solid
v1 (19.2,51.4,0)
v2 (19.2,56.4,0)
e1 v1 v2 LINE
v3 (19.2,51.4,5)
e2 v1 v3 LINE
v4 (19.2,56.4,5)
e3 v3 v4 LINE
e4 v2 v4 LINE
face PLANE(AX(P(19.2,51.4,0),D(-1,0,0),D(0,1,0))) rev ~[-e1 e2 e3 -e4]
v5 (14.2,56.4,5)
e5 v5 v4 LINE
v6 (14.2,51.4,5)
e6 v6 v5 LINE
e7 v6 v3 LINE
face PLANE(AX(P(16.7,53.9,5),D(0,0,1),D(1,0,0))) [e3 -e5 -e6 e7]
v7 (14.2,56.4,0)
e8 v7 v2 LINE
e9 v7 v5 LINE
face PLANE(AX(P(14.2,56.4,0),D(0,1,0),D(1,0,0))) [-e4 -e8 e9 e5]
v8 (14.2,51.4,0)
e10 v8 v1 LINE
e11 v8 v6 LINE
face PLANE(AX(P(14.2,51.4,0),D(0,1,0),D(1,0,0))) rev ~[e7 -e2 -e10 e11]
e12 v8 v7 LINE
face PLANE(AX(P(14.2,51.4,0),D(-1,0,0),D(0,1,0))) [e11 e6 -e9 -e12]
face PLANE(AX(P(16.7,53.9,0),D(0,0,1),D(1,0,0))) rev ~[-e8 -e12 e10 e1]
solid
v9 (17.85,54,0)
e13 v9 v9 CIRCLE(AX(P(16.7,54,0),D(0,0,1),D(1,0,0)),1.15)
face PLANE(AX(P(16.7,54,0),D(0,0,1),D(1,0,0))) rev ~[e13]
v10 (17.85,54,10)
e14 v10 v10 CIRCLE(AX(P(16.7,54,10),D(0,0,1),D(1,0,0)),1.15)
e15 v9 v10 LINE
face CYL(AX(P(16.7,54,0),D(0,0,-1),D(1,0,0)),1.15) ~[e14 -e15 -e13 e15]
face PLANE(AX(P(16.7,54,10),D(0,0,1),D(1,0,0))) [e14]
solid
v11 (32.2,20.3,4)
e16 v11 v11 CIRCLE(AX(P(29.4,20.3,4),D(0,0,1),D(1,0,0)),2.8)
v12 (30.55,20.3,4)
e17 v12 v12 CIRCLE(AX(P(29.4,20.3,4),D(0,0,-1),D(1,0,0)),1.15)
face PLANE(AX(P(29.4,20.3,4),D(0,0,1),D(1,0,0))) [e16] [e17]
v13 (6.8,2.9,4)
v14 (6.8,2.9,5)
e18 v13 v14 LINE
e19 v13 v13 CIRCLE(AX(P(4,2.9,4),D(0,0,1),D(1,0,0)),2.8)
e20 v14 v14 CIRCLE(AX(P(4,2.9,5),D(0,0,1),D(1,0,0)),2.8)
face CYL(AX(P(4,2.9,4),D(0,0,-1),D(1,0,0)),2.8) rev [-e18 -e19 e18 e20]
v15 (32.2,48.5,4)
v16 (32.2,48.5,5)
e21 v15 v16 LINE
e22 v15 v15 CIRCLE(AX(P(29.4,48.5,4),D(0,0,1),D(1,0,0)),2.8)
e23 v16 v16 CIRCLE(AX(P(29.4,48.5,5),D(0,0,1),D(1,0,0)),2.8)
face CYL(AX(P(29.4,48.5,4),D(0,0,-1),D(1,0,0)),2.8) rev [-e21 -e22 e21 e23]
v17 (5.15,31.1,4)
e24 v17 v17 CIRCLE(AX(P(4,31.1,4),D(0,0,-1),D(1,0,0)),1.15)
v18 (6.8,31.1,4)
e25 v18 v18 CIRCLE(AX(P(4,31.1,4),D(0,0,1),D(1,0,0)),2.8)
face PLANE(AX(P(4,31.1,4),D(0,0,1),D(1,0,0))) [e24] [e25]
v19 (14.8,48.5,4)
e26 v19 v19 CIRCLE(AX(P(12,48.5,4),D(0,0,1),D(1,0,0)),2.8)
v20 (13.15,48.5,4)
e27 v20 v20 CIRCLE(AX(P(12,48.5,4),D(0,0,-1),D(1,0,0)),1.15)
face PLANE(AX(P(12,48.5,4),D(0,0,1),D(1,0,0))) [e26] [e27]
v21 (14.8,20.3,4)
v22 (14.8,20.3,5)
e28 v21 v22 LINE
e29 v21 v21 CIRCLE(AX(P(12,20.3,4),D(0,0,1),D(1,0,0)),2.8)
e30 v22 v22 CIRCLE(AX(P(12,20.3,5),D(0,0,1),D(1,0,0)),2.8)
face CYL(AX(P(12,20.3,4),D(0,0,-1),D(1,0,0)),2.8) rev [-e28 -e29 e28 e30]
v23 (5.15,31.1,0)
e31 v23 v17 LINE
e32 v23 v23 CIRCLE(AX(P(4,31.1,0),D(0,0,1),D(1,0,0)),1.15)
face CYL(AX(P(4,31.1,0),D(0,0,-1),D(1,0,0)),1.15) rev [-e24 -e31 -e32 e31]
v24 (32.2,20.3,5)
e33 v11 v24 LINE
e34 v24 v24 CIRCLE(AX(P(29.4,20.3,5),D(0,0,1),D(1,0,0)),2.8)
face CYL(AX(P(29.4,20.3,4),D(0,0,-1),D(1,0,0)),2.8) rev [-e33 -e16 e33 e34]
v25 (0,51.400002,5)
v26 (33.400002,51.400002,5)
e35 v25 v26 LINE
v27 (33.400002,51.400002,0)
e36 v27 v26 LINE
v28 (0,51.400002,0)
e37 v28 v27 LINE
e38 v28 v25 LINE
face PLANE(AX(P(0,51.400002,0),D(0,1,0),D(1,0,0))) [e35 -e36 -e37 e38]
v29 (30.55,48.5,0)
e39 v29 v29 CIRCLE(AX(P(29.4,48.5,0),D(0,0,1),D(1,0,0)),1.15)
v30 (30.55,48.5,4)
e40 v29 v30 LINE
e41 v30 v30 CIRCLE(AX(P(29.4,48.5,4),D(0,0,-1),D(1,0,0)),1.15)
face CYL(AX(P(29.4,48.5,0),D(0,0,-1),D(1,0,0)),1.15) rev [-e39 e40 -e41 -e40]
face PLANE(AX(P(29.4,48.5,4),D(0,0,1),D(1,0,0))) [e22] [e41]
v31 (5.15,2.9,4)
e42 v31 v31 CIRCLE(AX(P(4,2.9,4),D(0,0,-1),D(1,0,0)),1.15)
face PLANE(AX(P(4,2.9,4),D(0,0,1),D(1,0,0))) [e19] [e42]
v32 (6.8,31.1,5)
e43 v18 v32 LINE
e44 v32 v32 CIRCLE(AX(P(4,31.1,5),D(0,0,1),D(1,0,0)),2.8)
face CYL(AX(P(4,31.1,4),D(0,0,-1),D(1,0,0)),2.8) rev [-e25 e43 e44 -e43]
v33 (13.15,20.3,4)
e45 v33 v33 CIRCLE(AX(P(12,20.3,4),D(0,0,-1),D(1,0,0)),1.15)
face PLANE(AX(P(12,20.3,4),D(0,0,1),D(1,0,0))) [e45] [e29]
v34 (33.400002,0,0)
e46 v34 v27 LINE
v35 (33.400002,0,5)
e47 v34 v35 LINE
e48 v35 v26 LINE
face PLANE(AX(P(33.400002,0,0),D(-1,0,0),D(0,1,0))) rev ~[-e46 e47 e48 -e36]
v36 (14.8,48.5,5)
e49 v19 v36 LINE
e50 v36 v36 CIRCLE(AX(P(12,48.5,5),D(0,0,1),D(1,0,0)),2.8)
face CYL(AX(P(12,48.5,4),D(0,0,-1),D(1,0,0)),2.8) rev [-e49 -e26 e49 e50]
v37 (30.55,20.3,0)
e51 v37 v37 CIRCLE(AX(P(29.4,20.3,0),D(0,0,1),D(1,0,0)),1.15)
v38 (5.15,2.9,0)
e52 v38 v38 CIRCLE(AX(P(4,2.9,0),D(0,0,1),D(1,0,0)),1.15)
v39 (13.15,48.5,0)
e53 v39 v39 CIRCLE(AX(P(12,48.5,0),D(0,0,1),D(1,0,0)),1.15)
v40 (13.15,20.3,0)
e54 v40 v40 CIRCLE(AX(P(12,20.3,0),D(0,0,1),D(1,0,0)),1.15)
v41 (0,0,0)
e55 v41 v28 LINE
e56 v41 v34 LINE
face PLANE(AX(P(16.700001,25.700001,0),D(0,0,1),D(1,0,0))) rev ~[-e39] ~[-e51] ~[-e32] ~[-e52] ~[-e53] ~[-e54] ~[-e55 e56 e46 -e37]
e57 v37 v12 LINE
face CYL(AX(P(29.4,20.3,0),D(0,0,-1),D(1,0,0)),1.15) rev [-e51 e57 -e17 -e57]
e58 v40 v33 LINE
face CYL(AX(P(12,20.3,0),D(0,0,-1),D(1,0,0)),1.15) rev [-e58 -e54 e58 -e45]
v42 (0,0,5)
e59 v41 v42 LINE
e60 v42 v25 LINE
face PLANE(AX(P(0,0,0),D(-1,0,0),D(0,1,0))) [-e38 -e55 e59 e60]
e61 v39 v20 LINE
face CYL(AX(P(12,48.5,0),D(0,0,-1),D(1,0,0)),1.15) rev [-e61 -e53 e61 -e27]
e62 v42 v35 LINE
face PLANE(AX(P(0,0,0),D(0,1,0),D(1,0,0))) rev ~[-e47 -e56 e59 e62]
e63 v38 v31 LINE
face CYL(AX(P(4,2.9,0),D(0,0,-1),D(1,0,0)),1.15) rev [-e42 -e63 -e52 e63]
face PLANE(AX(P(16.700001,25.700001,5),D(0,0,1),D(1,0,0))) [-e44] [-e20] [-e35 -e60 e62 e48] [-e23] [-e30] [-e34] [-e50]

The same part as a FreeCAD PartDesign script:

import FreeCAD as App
import Part
import Sketcher

V = App.Vector
Q = App.Units.Quantity


def add_polygon(sketch, points):
    """Adds a closed chain of lines whose ends are joined by coincident constraints."""
    first, n = sketch.GeometryCount, len(points)
    for a, b in zip(points, points[1:] + points[:1]):
        sketch.addGeometry(Part.LineSegment(App.Vector(*a, 0), App.Vector(*b, 0)), False)
    for i in range(n):
        sketch.addConstraint(Sketcher.Constraint("Coincident", first + i, 2, first + (i + 1) % n, 1))

doc = App.newDocument("Part")
body = doc.addObject("PartDesign::Body", "Body")

sketch1 = body.newObject("Sketcher::SketchObject", "Sketch")
sketch1.AttachmentSupport = (doc.getObject("XY_Plane"), [""])
sketch1.MapMode = "FlatFace"
sketch1.addGeometry(Part.Circle(V(4, 2.9, 0), V(0, 0, 1), 1.1), False)
sketch1.addConstraint([
    Sketcher.Constraint("Diameter", 0, Q("2.3 mm")),
    Sketcher.Constraint("DistanceX", -1, 1, 0, 3, Q("4 mm")),
    Sketcher.Constraint("DistanceY", -1, 1, 0, 3, Q("2.9 mm")),
])
pad1 = body.newObject("PartDesign::Pad", "Pad")
pad1.Profile = sketch1
pad1.Length = 10
body2 = doc.addObject("PartDesign::Body", "Body001")

sketch2 = body2.newObject("Sketcher::SketchObject", "Sketch001")
sketch2.AttachmentSupport = (doc.getObject("XY_Plane001"), [""])
sketch2.MapMode = "FlatFace"
sketch2.AttachmentOffset = App.Placement(V(0, 0, 4), App.Rotation())
sketch2.addGeometry(Part.Circle(V(4, 31.1, 0), V(0, 0, 1), 2.8), False)
sketch2.addConstraint([
    Sketcher.Constraint("Diameter", 0, Q("5.6 mm")),
    Sketcher.Constraint("DistanceX", -1, 1, 0, 3, Q("4 mm")),
    Sketcher.Constraint("DistanceY", -1, 1, 0, 3, Q("31.1 mm")),
])
pad2 = body2.newObject("PartDesign::Pad", "Pad001")
pad2.Profile = sketch2
pad2.Length = 1
body3 = doc.addObject("PartDesign::Body", "Body002")

sketch3 = body3.newObject("Sketcher::SketchObject", "Sketch002")
sketch3.AttachmentSupport = (doc.getObject("XY_Plane002"), [""])
sketch3.MapMode = "FlatFace"
sketch3.addGeometry(Part.Circle(V(4, 31.1, 0), V(0, 0, 1), 1.1), False)
sketch3.addConstraint([
    Sketcher.Constraint("Diameter", 0, Q("2.3 mm")),
    Sketcher.Constraint("DistanceX", -1, 1, 0, 3, Q("4 mm")),
    Sketcher.Constraint("DistanceY", -1, 1, 0, 3, Q("31.1 mm")),
])
pad3 = body3.newObject("PartDesign::Pad", "Pad002")
pad3.Profile = sketch3
pad3.Length = 10
body4 = doc.addObject("PartDesign::Body", "Body003")

sketch4 = body4.newObject("Sketcher::SketchObject", "Sketch003")
sketch4.AttachmentSupport = (doc.getObject("XY_Plane003"), [""])
sketch4.MapMode = "FlatFace"
sketch4.AttachmentOffset = App.Placement(V(0, 0, 4), App.Rotation())
sketch4.addGeometry(Part.Circle(V(12, 20.3, 0), V(0, 0, 1), 2.8), False)
sketch4.addConstraint([
    Sketcher.Constraint("Diameter", 0, Q("5.6 mm")),
    Sketcher.Constraint("DistanceX", -1, 1, 0, 3, Q("12 mm")),
    Sketcher.Constraint("DistanceY", -1, 1, 0, 3, Q("20.3 mm")),
])
pad4 = body4.newObject("PartDesign::Pad", "Pad003")
pad4.Profile = sketch4
pad4.Length = 1
body5 = doc.addObject("PartDesign::Body", "Body004")

sketch5 = body5.newObject("Sketcher::SketchObject", "Sketch004")
sketch5.AttachmentSupport = (doc.getObject("XY_Plane004"), [""])
sketch5.MapMode = "FlatFace"
sketch5.addGeometry(Part.Circle(V(12, 20.3, 0), V(0, 0, 1), 1.1), False)
sketch5.addConstraint([
    Sketcher.Constraint("Diameter", 0, Q("2.3 mm")),
    Sketcher.Constraint("DistanceX", -1, 1, 0, 3, Q("12 mm")),
    Sketcher.Constraint("DistanceY", -1, 1, 0, 3, Q("20.3 mm")),
])
pad5 = body5.newObject("PartDesign::Pad", "Pad004")
pad5.Profile = sketch5
pad5.Length = 10
body6 = doc.addObject("PartDesign::Body", "Body005")

sketch6 = body6.newObject("Sketcher::SketchObject", "Sketch005")
sketch6.AttachmentSupport = (doc.getObject("XY_Plane005"), [""])
sketch6.MapMode = "FlatFace"
sketch6.AttachmentOffset = App.Placement(V(0, 0, 4), App.Rotation())
sketch6.addGeometry(Part.Circle(V(12, 48.5, 0), V(0, 0, 1), 2.8), False)
sketch6.addConstraint([
    Sketcher.Constraint("Diameter", 0, Q("5.6 mm")),
    Sketcher.Constraint("DistanceX", -1, 1, 0, 3, Q("12 mm")),
    Sketcher.Constraint("DistanceY", -1, 1, 0, 3, Q("48.5 mm")),
])
pad6 = body6.newObject("PartDesign::Pad", "Pad005")
pad6.Profile = sketch6
pad6.Length = 1
body7 = doc.addObject("PartDesign::Body", "Body006")

sketch7 = body7.newObject("Sketcher::SketchObject", "Sketch006")
sketch7.AttachmentSupport = (doc.getObject("XY_Plane006"), [""])
sketch7.MapMode = "FlatFace"
sketch7.addGeometry(Part.Circle(V(12, 48.5, 0), V(0, 0, 1), 1.1), False)
sketch7.addConstraint([
    Sketcher.Constraint("Diameter", 0, Q("2.3 mm")),
    Sketcher.Constraint("DistanceX", -1, 1, 0, 3, Q("12 mm")),
    Sketcher.Constraint("DistanceY", -1, 1, 0, 3, Q("48.5 mm")),
])
pad7 = body7.newObject("PartDesign::Pad", "Pad006")
pad7.Profile = sketch7
pad7.Length = 10
body8 = doc.addObject("PartDesign::Body", "Body007")

sketch8 = body8.newObject("Sketcher::SketchObject", "Sketch007")
sketch8.AttachmentSupport = (doc.getObject("XY_Plane007"), [""])
sketch8.MapMode = "FlatFace"
sketch8.AttachmentOffset = App.Placement(V(0, 0, 4), App.Rotation())
sketch8.addGeometry(Part.Circle(V(29.4, 48.5, 0), V(0, 0, 1), 2.8), False)
sketch8.addConstraint([
    Sketcher.Constraint("Diameter", 0, Q("5.6 mm")),
    Sketcher.Constraint("DistanceX", -1, 1, 0, 3, Q("29.4 mm")),
    Sketcher.Constraint("DistanceY", -1, 1, 0, 3, Q("48.5 mm")),
])
pad8 = body8.newObject("PartDesign::Pad", "Pad007")
pad8.Profile = sketch8
pad8.Length = 1
body9 = doc.addObject("PartDesign::Body", "Body008")

sketch9 = body9.newObject("Sketcher::SketchObject", "Sketch008")
sketch9.AttachmentSupport = (doc.getObject("XY_Plane008"), [""])
sketch9.MapMode = "FlatFace"
sketch9.addGeometry(Part.Circle(V(29.4, 48.5, 0), V(0, 0, 1), 1.1), False)
sketch9.addConstraint([
    Sketcher.Constraint("Diameter", 0, Q("2.3 mm")),
    Sketcher.Constraint("DistanceX", -1, 1, 0, 3, Q("29.4 mm")),
    Sketcher.Constraint("DistanceY", -1, 1, 0, 3, Q("48.5 mm")),
])
pad9 = body9.newObject("PartDesign::Pad", "Pad008")
pad9.Profile = sketch9
pad9.Length = 10
body10 = doc.addObject("PartDesign::Body", "Body009")

sketch10 = body10.newObject("Sketcher::SketchObject", "Sketch009")
sketch10.AttachmentSupport = (doc.getObject("XY_Plane009"), [""])
sketch10.MapMode = "FlatFace"
sketch10.AttachmentOffset = App.Placement(V(0, 0, 4), App.Rotation())
sketch10.addGeometry(Part.Circle(V(29.4, 20.3, 0), V(0, 0, 1), 2.8), False)
sketch10.addConstraint([
    Sketcher.Constraint("Diameter", 0, Q("5.6 mm")),
    Sketcher.Constraint("DistanceX", -1, 1, 0, 3, Q("29.4 mm")),
    Sketcher.Constraint("DistanceY", -1, 1, 0, 3, Q("20.3 mm")),
])
pad10 = body10.newObject("PartDesign::Pad", "Pad009")
pad10.Profile = sketch10
pad10.Length = 1
body11 = doc.addObject("PartDesign::Body", "Body010")

sketch11 = body11.newObject("Sketcher::SketchObject", "Sketch010")
sketch11.AttachmentSupport = (doc.getObject("XY_Plane010"), [""])
sketch11.MapMode = "FlatFace"
sketch11.addGeometry(Part.Circle(V(29.4, 20.3, 0), V(0, 0, 1), 1.1), False)
sketch11.addConstraint([
    Sketcher.Constraint("Diameter", 0, Q("2.3 mm")),
    Sketcher.Constraint("DistanceX", -1, 1, 0, 3, Q("29.4 mm")),
    Sketcher.Constraint("DistanceY", -1, 1, 0, 3, Q("20.3 mm")),
])
pad11 = body11.newObject("PartDesign::Pad", "Pad010")
pad11.Profile = sketch11
pad11.Length = 10
body12 = doc.addObject("PartDesign::Body", "Body011")

sketch12 = body12.newObject("Sketcher::SketchObject", "Sketch011")
sketch12.AttachmentSupport = (doc.getObject("XY_Plane011"), [""])
sketch12.MapMode = "FlatFace"
sketch12.AttachmentOffset = App.Placement(V(0, 0, 4), App.Rotation())
sketch12.addGeometry(Part.Circle(V(4, 2.9, 0), V(0, 0, 1), 2.8), False)
sketch12.addConstraint([
    Sketcher.Constraint("Diameter", 0, Q("5.6 mm")),
    Sketcher.Constraint("DistanceX", -1, 1, 0, 3, Q("4 mm")),
    Sketcher.Constraint("DistanceY", -1, 1, 0, 3, Q("2.9 mm")),
])
pad12 = body12.newObject("PartDesign::Pad", "Pad011")
pad12.Profile = sketch12
pad12.Length = 1
body13 = doc.addObject("PartDesign::Body", "Body012")

sketch13 = body13.newObject("Sketcher::SketchObject", "Sketch012")
sketch13.AttachmentSupport = (doc.getObject("XY_Plane012"), [""])
sketch13.MapMode = "FlatFace"
add_polygon(sketch13, [(0, 51), (0, 0), (33, 0), (33, 51)])
sketch13.addConstraint([
    Sketcher.Constraint("Vertical", 0),
    Sketcher.Constraint("Horizontal", 1),
    Sketcher.Constraint("Vertical", 2),
    Sketcher.Constraint("Horizontal", 3),
    Sketcher.Constraint("Coincident", 0, 2, -1, 1),
    Sketcher.Constraint("DistanceX", 1, 1, 1, 2, Q("33.400002 mm")),
    Sketcher.Constraint("DistanceY", 0, 2, 0, 1, Q("51.400002 mm")),
])
pad13 = body13.newObject("PartDesign::Pad", "Pad012")
pad13.Profile = sketch13
pad13.Length = 5
doc.recompute()

boolean = body13.newObject("PartDesign::Boolean", "Boolean")
boolean.Type = "Cut"
boolean.addObjects([body12])
doc.recompute()

boolean2 = body13.newObject("PartDesign::Boolean", "Boolean001")
boolean2.Type = "Cut"
boolean2.addObjects([body11])
doc.recompute()

boolean3 = body13.newObject("PartDesign::Boolean", "Boolean002")
boolean3.Type = "Cut"
boolean3.addObjects([body10])
doc.recompute()

boolean4 = body13.newObject("PartDesign::Boolean", "Boolean003")
boolean4.Type = "Cut"
boolean4.addObjects([body9])
doc.recompute()

boolean5 = body13.newObject("PartDesign::Boolean", "Boolean004")
boolean5.Type = "Cut"
boolean5.addObjects([body8])
doc.recompute()

boolean6 = body13.newObject("PartDesign::Boolean", "Boolean005")
boolean6.Type = "Cut"
boolean6.addObjects([body7])
doc.recompute()

boolean7 = body13.newObject("PartDesign::Boolean", "Boolean006")
boolean7.Type = "Cut"
boolean7.addObjects([body6])
doc.recompute()

boolean8 = body13.newObject("PartDesign::Boolean", "Boolean007")
boolean8.Type = "Cut"
boolean8.addObjects([body5])
doc.recompute()

boolean9 = body13.newObject("PartDesign::Boolean", "Boolean008")
boolean9.Type = "Cut"
boolean9.addObjects([body4])
doc.recompute()

boolean10 = body13.newObject("PartDesign::Boolean", "Boolean009")
boolean10.Type = "Cut"
boolean10.addObjects([body3])
doc.recompute()

boolean11 = body13.newObject("PartDesign::Boolean", "Boolean010")
boolean11.Type = "Cut"
boolean11.addObjects([body2])
doc.recompute()

boolean12 = body13.newObject("PartDesign::Boolean", "Boolean011")
boolean12.Type = "Cut"
boolean12.addObjects([body])
body14 = doc.addObject("PartDesign::Body", "Body013")

sketch14 = body14.newObject("Sketcher::SketchObject", "Sketch013")
sketch14.AttachmentSupport = (doc.getObject("XY_Plane013"), [""])
sketch14.MapMode = "FlatFace"
add_polygon(sketch14, [(14, 56), (14, 51), (19, 51), (19, 56)])
sketch14.addConstraint([
    Sketcher.Constraint("Vertical", 0),
    Sketcher.Constraint("Horizontal", 1),
    Sketcher.Constraint("Vertical", 2),
    Sketcher.Constraint("Horizontal", 3),
    Sketcher.Constraint("Equal", 3, 0),
    Sketcher.Constraint("DistanceX", 1, 1, 1, 2, Q("5 mm")),
    Sketcher.Constraint("DistanceX", -1, 1, 0, 2, Q("14.2 mm")),
    Sketcher.Constraint("DistanceY", -1, 1, 0, 2, Q("51.4 mm")),
])
pad14 = body14.newObject("PartDesign::Pad", "Pad013")
pad14.Profile = sketch14
pad14.Length = 5
body15 = doc.addObject("PartDesign::Body", "Body014")

sketch15 = body15.newObject("Sketcher::SketchObject", "Sketch014")
sketch15.AttachmentSupport = (doc.getObject("XY_Plane014"), [""])
sketch15.MapMode = "FlatFace"
sketch15.addGeometry(Part.Circle(V(16.7, 54, 0), V(0, 0, 1), 1.1), False)
sketch15.addConstraint([
    Sketcher.Constraint("Diameter", 0, Q("2.3 mm")),
    Sketcher.Constraint("DistanceY", -1, 1, 0, 3, Q("54 mm")),
    Sketcher.Constraint("DistanceX", -1, 1, 0, 3, Q("16.7 mm")),
])
pad15 = body15.newObject("PartDesign::Pad", "Pad014")
pad15.Profile = sketch15
pad15.Length = 10

doc.recompute()
